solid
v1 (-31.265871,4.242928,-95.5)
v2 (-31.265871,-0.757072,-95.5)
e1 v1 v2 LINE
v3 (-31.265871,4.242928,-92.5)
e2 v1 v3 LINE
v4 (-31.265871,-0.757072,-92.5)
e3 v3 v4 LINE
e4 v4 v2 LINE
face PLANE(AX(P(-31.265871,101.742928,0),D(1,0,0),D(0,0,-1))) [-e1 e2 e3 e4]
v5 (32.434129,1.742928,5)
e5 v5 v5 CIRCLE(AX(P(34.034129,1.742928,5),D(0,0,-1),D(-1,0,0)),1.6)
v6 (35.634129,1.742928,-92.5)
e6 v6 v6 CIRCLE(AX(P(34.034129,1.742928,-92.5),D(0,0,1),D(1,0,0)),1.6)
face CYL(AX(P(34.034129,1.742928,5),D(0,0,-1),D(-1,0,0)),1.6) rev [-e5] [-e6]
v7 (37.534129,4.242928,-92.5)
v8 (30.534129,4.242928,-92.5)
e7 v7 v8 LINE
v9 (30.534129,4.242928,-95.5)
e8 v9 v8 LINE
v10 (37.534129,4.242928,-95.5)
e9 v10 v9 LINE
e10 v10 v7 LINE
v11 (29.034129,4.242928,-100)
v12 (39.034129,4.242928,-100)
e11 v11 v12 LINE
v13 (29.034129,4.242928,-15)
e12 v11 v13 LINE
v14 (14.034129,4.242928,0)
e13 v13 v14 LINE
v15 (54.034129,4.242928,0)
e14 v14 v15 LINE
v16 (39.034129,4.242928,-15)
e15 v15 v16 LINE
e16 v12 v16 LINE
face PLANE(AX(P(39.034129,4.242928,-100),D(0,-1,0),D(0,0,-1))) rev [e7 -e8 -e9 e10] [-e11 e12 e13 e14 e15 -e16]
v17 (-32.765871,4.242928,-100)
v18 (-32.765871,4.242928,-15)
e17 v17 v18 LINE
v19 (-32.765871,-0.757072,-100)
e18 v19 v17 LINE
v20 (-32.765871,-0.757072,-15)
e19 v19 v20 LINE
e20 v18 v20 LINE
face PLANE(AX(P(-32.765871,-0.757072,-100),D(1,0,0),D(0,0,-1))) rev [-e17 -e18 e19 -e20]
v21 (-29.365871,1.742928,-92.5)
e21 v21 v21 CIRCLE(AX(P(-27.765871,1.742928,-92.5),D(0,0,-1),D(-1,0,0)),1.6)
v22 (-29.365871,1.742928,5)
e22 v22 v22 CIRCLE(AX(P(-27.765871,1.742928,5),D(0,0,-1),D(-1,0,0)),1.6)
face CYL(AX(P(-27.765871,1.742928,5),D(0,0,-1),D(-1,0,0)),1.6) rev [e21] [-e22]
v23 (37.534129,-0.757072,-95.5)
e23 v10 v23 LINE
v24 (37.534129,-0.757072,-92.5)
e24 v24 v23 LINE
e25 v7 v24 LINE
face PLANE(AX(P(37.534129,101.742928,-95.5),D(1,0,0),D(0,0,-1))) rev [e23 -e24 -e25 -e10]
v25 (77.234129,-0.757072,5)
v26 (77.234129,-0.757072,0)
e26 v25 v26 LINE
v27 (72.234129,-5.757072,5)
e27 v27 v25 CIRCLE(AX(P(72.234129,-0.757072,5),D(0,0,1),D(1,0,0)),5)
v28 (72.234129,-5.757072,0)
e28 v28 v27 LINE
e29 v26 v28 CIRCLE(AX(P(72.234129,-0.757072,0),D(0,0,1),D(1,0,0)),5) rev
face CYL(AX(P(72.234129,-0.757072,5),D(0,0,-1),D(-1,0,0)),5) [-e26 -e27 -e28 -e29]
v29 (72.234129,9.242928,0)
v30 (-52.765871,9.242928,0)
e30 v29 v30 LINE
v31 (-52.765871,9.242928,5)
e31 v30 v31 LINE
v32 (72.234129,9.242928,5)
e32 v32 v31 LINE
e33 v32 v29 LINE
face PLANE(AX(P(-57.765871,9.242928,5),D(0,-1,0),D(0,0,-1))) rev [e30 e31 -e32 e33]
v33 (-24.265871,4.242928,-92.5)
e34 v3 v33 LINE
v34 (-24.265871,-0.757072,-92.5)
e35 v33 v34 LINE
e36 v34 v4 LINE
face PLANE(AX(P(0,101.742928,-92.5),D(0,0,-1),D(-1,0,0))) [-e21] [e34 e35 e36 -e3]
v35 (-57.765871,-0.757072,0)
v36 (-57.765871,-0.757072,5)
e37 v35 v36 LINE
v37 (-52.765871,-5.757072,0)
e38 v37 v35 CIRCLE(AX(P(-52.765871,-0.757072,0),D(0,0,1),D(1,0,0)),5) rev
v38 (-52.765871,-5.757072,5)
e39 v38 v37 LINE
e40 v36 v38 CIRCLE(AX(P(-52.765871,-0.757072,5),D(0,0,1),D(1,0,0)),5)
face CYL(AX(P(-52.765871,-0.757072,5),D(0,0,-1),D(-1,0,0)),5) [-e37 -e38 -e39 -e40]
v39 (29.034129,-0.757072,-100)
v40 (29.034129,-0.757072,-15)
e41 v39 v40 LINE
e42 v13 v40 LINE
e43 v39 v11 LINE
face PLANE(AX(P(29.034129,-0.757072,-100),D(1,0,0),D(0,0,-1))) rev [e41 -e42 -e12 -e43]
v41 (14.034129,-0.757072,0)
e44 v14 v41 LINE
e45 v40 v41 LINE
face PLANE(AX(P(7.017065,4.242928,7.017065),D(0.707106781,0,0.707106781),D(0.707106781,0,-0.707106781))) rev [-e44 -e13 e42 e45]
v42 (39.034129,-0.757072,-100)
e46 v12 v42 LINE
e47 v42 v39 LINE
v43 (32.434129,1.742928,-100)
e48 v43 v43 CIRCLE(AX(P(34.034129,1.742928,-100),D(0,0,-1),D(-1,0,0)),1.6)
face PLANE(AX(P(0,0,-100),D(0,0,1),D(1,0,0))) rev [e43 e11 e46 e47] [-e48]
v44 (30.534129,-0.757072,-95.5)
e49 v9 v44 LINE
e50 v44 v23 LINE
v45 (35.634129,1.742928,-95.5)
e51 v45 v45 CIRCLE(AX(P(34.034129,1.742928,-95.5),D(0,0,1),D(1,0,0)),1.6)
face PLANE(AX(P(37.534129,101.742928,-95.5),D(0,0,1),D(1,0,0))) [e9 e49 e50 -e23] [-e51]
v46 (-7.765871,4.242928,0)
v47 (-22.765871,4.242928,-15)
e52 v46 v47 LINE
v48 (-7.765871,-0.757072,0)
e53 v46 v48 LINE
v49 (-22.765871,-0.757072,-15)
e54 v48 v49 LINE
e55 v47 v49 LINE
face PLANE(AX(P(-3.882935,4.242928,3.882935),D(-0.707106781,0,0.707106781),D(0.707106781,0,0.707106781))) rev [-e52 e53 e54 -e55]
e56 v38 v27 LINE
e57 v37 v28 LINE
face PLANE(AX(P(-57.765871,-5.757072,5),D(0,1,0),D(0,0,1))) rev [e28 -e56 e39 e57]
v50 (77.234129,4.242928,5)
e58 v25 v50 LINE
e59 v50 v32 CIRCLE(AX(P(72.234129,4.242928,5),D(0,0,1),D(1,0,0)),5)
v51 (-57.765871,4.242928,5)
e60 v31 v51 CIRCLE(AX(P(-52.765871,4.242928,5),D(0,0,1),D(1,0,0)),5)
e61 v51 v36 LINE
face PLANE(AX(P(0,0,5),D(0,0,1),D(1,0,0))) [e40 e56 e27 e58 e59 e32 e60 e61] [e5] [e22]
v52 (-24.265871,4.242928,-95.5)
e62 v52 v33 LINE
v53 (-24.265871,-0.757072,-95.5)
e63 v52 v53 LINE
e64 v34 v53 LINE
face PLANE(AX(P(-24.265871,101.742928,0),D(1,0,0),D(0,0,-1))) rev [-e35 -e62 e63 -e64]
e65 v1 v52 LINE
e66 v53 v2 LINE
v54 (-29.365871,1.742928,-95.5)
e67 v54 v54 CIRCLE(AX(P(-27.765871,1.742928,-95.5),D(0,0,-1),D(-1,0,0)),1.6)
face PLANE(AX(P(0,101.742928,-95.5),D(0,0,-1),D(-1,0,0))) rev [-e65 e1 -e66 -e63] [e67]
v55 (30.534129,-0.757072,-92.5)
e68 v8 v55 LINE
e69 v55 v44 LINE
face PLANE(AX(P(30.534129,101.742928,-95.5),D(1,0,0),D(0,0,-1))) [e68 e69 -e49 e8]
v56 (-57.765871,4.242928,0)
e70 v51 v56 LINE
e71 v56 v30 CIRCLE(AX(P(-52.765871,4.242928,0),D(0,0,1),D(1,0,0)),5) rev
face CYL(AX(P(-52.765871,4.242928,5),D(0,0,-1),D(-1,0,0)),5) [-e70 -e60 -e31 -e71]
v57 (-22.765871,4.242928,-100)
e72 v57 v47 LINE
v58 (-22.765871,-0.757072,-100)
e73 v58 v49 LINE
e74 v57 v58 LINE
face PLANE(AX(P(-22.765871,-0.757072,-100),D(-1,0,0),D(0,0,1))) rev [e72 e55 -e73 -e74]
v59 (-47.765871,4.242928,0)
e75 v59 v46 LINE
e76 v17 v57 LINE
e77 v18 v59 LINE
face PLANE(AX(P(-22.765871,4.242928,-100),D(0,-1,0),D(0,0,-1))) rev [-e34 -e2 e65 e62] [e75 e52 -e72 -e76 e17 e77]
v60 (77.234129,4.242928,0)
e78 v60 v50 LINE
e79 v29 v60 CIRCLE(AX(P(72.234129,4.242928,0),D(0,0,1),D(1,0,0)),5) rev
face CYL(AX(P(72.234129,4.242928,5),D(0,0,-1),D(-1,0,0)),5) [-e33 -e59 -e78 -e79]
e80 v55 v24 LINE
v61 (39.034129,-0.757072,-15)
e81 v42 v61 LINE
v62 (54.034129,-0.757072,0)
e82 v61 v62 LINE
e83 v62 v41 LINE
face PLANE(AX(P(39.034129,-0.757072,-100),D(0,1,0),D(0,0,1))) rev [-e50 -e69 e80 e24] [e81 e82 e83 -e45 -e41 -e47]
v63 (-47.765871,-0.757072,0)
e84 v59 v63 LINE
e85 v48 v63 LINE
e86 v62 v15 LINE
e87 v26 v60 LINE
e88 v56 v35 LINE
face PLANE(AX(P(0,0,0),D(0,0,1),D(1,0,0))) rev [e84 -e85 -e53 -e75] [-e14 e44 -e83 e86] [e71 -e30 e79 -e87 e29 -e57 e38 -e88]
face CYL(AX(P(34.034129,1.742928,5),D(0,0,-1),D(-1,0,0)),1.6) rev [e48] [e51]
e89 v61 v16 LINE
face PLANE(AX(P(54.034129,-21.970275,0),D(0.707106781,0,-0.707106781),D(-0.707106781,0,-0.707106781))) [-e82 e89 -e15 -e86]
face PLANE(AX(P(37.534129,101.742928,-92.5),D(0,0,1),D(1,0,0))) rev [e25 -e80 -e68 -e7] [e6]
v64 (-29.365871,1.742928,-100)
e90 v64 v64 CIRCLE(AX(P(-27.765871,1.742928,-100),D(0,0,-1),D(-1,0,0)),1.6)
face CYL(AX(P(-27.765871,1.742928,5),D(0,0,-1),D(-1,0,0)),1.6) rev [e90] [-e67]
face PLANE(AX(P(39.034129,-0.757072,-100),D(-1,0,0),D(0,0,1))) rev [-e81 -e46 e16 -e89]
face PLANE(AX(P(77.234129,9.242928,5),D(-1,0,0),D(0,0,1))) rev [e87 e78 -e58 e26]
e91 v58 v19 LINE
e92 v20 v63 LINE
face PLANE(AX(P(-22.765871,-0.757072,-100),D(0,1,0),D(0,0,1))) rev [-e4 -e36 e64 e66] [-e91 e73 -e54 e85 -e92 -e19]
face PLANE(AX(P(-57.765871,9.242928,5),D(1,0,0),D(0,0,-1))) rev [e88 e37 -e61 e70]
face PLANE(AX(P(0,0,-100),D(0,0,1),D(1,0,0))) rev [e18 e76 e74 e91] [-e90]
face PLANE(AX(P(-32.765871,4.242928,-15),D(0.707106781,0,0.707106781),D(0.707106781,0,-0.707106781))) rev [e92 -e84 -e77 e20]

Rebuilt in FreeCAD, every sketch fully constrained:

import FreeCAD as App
import Part
import Sketcher

V = App.Vector


def edges_at(feature, points):
    """Names of the edges that pass closest to the given points."""
    edges = feature.Shape.Edges
    near = lambda p: min(range(len(edges)), key=lambda i: edges[i].distToShape(Part.Vertex(*p))[0])
    return sorted({f"Edge{near(p) + 1}" for p in points})


def add_polygon(sketch, points):
    """Adds a closed chain of lines whose ends are joined by coincident constraints."""
    first, n = sketch.GeometryCount, len(points)
    for a, b in zip(points, points[1:] + points[:1]):
        sketch.addGeometry(Part.LineSegment(App.Vector(*a, 0), App.Vector(*b, 0)), False)
    for i in range(n):
        sketch.addConstraint(Sketcher.Constraint("Coincident", first + i, 2, first + (i + 1) % n, 1))

doc = App.newDocument("Part")
body = doc.addObject("PartDesign::Body", "Body")

sketch1 = body.newObject("Sketcher::SketchObject", "Sketch")
sketch1.AttachmentSupport = (doc.getObject("XY_Plane"), [""])
sketch1.MapMode = "FlatFace"
add_polygon(sketch1, [(-58, 9), (-58, -6), (77, -6), (77, 9)])
sketch1.addConstraint(Sketcher.Constraint("Vertical", 0))
sketch1.addConstraint(Sketcher.Constraint("Horizontal", 1))
sketch1.addConstraint(Sketcher.Constraint("Vertical", 2))
sketch1.addConstraint(Sketcher.Constraint("Horizontal", 3))
sketch1.addConstraint(Sketcher.Constraint("DistanceX", 1, 1, 1, 2, 135.0))
sketch1.addConstraint(Sketcher.Constraint("DistanceY", 0, 2, 0, 1, 15.0))
sketch1.addConstraint(Sketcher.Constraint("DistanceX", 0, 2, -1, 1, 57.765871))
sketch1.addConstraint(Sketcher.Constraint("DistanceY", 0, 2, -1, 1, 5.757072))
pad1 = body.newObject("PartDesign::Pad", "Pad")
pad1.Profile = sketch1
pad1.Length = 5
doc.recompute()

fillet = body.newObject("PartDesign::Fillet", "Fillet")
fillet.Base = (pad1, edges_at(pad1, [(-57.766, 9.243, 2.5), (-57.766, -5.757, 2.5)]))
fillet.Radius = 5
doc.recompute()

fillet2 = body.newObject("PartDesign::Fillet", "Fillet001")
fillet2.Base = (fillet, edges_at(fillet, [(77.234, 9.243, 2.5), (77.234, -5.757, 2.5)]))
fillet2.Radius = 5

sketch2 = body.newObject("Sketcher::SketchObject", "Sketch001")
sketch2.AttachmentSupport = (doc.getObject("XY_Plane"), [""])
sketch2.MapMode = "FlatFace"
sketch2.addGeometry(Part.Circle(V(-27.8, 1.7, 0), V(0, 0, 1), 1.6), False)
sketch2.addGeometry(Part.Circle(V(34, 1.7, 0), V(0, 0, 1), 1.6), False)
sketch2.addConstraint(Sketcher.Constraint("Equal", 0, 1))
sketch2.addConstraint(Sketcher.Constraint("Horizontal", 0, 3, 1, 3))
sketch2.addConstraint(Sketcher.Constraint("Diameter", 0, 3.2))
sketch2.addConstraint(Sketcher.Constraint("DistanceX", 0, 3, 1, 3, 61.8))
sketch2.addConstraint(Sketcher.Constraint("DistanceX", 0, 3, -1, 1, 27.765871))
sketch2.addConstraint(Sketcher.Constraint("DistanceY", -1, 1, 0, 3, 1.742928))
pocket1 = body.newObject("PartDesign::Pocket", "Pocket")
pocket1.Profile = sketch2
pocket1.Length = 5
pocket1.Reversed = True

sketch3 = body.newObject("Sketcher::SketchObject", "Sketch002")
sketch3.AttachmentSupport = (doc.getObject("XY_Plane"), [""])
sketch3.MapMode = "FlatFace"
add_polygon(sketch3, [(39, 4), (39, -1), (29, -1), (29, 4)])
add_polygon(sketch3, [(-23, 4), (-23, -1), (-33, -1), (-33, 4)])
sketch3.addConstraint(Sketcher.Constraint("Vertical", 0))
sketch3.addConstraint(Sketcher.Constraint("Horizontal", 1))
sketch3.addConstraint(Sketcher.Constraint("Vertical", 2))
sketch3.addConstraint(Sketcher.Constraint("Horizontal", 3))
sketch3.addConstraint(Sketcher.Constraint("Vertical", 4))
sketch3.addConstraint(Sketcher.Constraint("Horizontal", 5))
sketch3.addConstraint(Sketcher.Constraint("Vertical", 6))
sketch3.addConstraint(Sketcher.Constraint("Horizontal", 7))
sketch3.addConstraint(Sketcher.Constraint("Horizontal", 1, 2, 4, 2))
sketch3.addConstraint(Sketcher.Constraint("Horizontal", 3, 2, 6, 2))
sketch3.addConstraint(Sketcher.Constraint("Equal", 3, 5))
sketch3.addConstraint(Sketcher.Constraint("DistanceX", 1, 2, 1, 1, 10.0))
sketch3.addConstraint(Sketcher.Constraint("DistanceY", 0, 2, 0, 1, 5.0))
sketch3.addConstraint(Sketcher.Constraint("DistanceX", 4, 2, 1, 2, 51.8))
sketch3.addConstraint(Sketcher.Constraint("DistanceX", -1, 1, 0, 2, 39.034129))
sketch3.addConstraint(Sketcher.Constraint("DistanceY", 0, 2, -1, 1, 0.757072))
pad2 = body.newObject("PartDesign::Pad", "Pad001")
pad2.Profile = sketch3
pad2.Length = 100
pad2.Reversed = True

sketch4 = body.newObject("Sketcher::SketchObject", "Sketch003")
sketch4.AttachmentSupport = (doc.getObject("XZ_Plane"), [""])
sketch4.MapMode = "FlatFace"
sketch4.AttachmentOffset = App.Placement(V(0, 0, 0.757072), App.Rotation())
add_polygon(sketch4, [(-33, 0), (-33, -15), (-48, 0)])
sketch4.addConstraint(Sketcher.Constraint("Vertical", 0))
sketch4.addConstraint(Sketcher.Constraint("Horizontal", 2))
sketch4.addConstraint(Sketcher.Constraint("PointOnObject", 1, 2, -1))
sketch4.addConstraint(Sketcher.Constraint("Equal", 2, 0))
sketch4.addConstraint(Sketcher.Constraint("DistanceX", 2, 1, 2, 2, 15.0))
sketch4.addConstraint(Sketcher.Constraint("DistanceX", 0, 2, -1, 1, 32.765871))
pad3 = body.newObject("PartDesign::Pad", "Pad002")
pad3.Profile = sketch4
pad3.Length = 5
pad3.Reversed = True

sketch5 = body.newObject("Sketcher::SketchObject", "Sketch004")
sketch5.AttachmentSupport = (doc.getObject("XZ_Plane"), [""])
sketch5.MapMode = "FlatFace"
sketch5.AttachmentOffset = App.Placement(V(0, 0, -4.242928), App.Rotation())
add_polygon(sketch5, [(39, -15), (39, 0), (54, 0)])
sketch5.addConstraint(Sketcher.Constraint("Vertical", 0))
sketch5.addConstraint(Sketcher.Constraint("Horizontal", 1))
sketch5.addConstraint(Sketcher.Constraint("PointOnObject", 0, 2, -1))
sketch5.addConstraint(Sketcher.Constraint("Equal", 1, 0))
sketch5.addConstraint(Sketcher.Constraint("DistanceX", 1, 1, 1, 2, 15.0))
sketch5.addConstraint(Sketcher.Constraint("DistanceX", -1, 1, 0, 2, 39.034129))
pad4 = body.newObject("PartDesign::Pad", "Pad003")
pad4.Profile = sketch5
pad4.Length = 5

sketch6 = body.newObject("Sketcher::SketchObject", "Sketch005")
sketch6.AttachmentSupport = (doc.getObject("XZ_Plane"), [""])
sketch6.MapMode = "FlatFace"
sketch6.AttachmentOffset = App.Placement(V(0, 0, 0.757072), App.Rotation())
add_polygon(sketch6, [(14, 0), (29, 0), (29, -15)])
add_polygon(sketch6, [(-23, 0), (-8, 0), (-23, -15)])
sketch6.addConstraint(Sketcher.Constraint("Horizontal", 0))
sketch6.addConstraint(Sketcher.Constraint("Vertical", 1))
sketch6.addConstraint(Sketcher.Constraint("Horizontal", 3))
sketch6.addConstraint(Sketcher.Constraint("Vertical", 5))
sketch6.addConstraint(Sketcher.Constraint("PointOnObject", 0, 2, -1))
sketch6.addConstraint(Sketcher.Constraint("PointOnObject", 3, 2, -1))
sketch6.addConstraint(Sketcher.Constraint("Perpendicular", 2, 4))
sketch6.addConstraint(Sketcher.Constraint("Horizontal", 1, 2, 4, 2))
sketch6.addConstraint(Sketcher.Constraint("Equal", 0, 3))
sketch6.addConstraint(Sketcher.Constraint("DistanceX", 0, 1, 0, 2, 15.0))
sketch6.addConstraint(Sketcher.Constraint("DistanceX", 3, 2, 2, 2, 21.8))
sketch6.addConstraint(Sketcher.Constraint("DistanceX", -1, 1, 0, 2, 29.034129))
pad5 = body.newObject("PartDesign::Pad", "Pad004")
pad5.Profile = sketch6
pad5.Length = 5
pad5.Reversed = True

sketch7 = body.newObject("Sketcher::SketchObject", "Sketch006")
sketch7.AttachmentSupport = (doc.getObject("XZ_Plane"), [""])
sketch7.MapMode = "FlatFace"
sketch7.AttachmentOffset = App.Placement(V(0, 0, -1.742928), App.Rotation())
add_polygon(sketch7, [(-31.3, -95.5), (-31.3, -92.5), (-24.3, -92.5), (-24.3, -95.5)])
add_polygon(sketch7, [(30.5, -95.5), (30.5, -92.5), (37.5, -92.5), (37.5, -95.5)])
sketch7.addConstraint(Sketcher.Constraint("Vertical", 0))
sketch7.addConstraint(Sketcher.Constraint("Horizontal", 1))
sketch7.addConstraint(Sketcher.Constraint("Vertical", 2))
sketch7.addConstraint(Sketcher.Constraint("Horizontal", 3))
sketch7.addConstraint(Sketcher.Constraint("Vertical", 4))
sketch7.addConstraint(Sketcher.Constraint("Horizontal", 5))
sketch7.addConstraint(Sketcher.Constraint("Vertical", 6))
sketch7.addConstraint(Sketcher.Constraint("Horizontal", 7))
sketch7.addConstraint(Sketcher.Constraint("Horizontal", 1, 2, 4, 2))
sketch7.addConstraint(Sketcher.Constraint("Horizontal", 3, 2, 6, 2))
sketch7.addConstraint(Sketcher.Constraint("Equal", 3, 5))
sketch7.addConstraint(Sketcher.Constraint("DistanceX", 1, 1, 1, 2, 7.0))
sketch7.addConstraint(Sketcher.Constraint("DistanceY", 0, 1, 0, 2, 3.0))
sketch7.addConstraint(Sketcher.Constraint("DistanceY", 0, 2, -1, 1, 92.5))
sketch7.addConstraint(Sketcher.Constraint("DistanceX", 1, 2, 4, 2, 54.8))
sketch7.addConstraint(Sketcher.Constraint("DistanceX", 0, 2, -1, 1, 31.265871))
pocket2 = body.newObject("PartDesign::Pocket", "Pocket001")
pocket2.Profile = sketch7
pocket2.Type = "ThroughAll"
pocket2.Midplane = True

sketch8 = body.newObject("Sketcher::SketchObject", "Sketch007")
sketch8.AttachmentSupport = (doc.getObject("XY_Plane"), [""])
sketch8.MapMode = "FlatFace"
sketch8.AttachmentOffset = App.Placement(V(0, 0, -100), App.Rotation())
sketch8.addGeometry(Part.Circle(V(-27.8, 1.7, 0), V(0, 0, 1), 1.6), False)
sketch8.addGeometry(Part.Circle(V(34, 1.7, 0), V(0, 0, 1), 1.6), False)
sketch8.addConstraint(Sketcher.Constraint("Equal", 0, 1))
sketch8.addConstraint(Sketcher.Constraint("Horizontal", 0, 3, 1, 3))
sketch8.addConstraint(Sketcher.Constraint("Diameter", 0, 3.2))
sketch8.addConstraint(Sketcher.Constraint("DistanceX", 0, 3, 1, 3, 61.8))
sketch8.addConstraint(Sketcher.Constraint("DistanceX", 0, 3, -1, 1, 27.765871))
sketch8.addConstraint(Sketcher.Constraint("DistanceY", -1, 1, 0, 3, 1.742928))
pocket3 = body.newObject("PartDesign::Pocket", "Pocket002")
pocket3.Profile = sketch8
pocket3.Type = "ThroughAll"
pocket3.Reversed = True

doc.recompute()
